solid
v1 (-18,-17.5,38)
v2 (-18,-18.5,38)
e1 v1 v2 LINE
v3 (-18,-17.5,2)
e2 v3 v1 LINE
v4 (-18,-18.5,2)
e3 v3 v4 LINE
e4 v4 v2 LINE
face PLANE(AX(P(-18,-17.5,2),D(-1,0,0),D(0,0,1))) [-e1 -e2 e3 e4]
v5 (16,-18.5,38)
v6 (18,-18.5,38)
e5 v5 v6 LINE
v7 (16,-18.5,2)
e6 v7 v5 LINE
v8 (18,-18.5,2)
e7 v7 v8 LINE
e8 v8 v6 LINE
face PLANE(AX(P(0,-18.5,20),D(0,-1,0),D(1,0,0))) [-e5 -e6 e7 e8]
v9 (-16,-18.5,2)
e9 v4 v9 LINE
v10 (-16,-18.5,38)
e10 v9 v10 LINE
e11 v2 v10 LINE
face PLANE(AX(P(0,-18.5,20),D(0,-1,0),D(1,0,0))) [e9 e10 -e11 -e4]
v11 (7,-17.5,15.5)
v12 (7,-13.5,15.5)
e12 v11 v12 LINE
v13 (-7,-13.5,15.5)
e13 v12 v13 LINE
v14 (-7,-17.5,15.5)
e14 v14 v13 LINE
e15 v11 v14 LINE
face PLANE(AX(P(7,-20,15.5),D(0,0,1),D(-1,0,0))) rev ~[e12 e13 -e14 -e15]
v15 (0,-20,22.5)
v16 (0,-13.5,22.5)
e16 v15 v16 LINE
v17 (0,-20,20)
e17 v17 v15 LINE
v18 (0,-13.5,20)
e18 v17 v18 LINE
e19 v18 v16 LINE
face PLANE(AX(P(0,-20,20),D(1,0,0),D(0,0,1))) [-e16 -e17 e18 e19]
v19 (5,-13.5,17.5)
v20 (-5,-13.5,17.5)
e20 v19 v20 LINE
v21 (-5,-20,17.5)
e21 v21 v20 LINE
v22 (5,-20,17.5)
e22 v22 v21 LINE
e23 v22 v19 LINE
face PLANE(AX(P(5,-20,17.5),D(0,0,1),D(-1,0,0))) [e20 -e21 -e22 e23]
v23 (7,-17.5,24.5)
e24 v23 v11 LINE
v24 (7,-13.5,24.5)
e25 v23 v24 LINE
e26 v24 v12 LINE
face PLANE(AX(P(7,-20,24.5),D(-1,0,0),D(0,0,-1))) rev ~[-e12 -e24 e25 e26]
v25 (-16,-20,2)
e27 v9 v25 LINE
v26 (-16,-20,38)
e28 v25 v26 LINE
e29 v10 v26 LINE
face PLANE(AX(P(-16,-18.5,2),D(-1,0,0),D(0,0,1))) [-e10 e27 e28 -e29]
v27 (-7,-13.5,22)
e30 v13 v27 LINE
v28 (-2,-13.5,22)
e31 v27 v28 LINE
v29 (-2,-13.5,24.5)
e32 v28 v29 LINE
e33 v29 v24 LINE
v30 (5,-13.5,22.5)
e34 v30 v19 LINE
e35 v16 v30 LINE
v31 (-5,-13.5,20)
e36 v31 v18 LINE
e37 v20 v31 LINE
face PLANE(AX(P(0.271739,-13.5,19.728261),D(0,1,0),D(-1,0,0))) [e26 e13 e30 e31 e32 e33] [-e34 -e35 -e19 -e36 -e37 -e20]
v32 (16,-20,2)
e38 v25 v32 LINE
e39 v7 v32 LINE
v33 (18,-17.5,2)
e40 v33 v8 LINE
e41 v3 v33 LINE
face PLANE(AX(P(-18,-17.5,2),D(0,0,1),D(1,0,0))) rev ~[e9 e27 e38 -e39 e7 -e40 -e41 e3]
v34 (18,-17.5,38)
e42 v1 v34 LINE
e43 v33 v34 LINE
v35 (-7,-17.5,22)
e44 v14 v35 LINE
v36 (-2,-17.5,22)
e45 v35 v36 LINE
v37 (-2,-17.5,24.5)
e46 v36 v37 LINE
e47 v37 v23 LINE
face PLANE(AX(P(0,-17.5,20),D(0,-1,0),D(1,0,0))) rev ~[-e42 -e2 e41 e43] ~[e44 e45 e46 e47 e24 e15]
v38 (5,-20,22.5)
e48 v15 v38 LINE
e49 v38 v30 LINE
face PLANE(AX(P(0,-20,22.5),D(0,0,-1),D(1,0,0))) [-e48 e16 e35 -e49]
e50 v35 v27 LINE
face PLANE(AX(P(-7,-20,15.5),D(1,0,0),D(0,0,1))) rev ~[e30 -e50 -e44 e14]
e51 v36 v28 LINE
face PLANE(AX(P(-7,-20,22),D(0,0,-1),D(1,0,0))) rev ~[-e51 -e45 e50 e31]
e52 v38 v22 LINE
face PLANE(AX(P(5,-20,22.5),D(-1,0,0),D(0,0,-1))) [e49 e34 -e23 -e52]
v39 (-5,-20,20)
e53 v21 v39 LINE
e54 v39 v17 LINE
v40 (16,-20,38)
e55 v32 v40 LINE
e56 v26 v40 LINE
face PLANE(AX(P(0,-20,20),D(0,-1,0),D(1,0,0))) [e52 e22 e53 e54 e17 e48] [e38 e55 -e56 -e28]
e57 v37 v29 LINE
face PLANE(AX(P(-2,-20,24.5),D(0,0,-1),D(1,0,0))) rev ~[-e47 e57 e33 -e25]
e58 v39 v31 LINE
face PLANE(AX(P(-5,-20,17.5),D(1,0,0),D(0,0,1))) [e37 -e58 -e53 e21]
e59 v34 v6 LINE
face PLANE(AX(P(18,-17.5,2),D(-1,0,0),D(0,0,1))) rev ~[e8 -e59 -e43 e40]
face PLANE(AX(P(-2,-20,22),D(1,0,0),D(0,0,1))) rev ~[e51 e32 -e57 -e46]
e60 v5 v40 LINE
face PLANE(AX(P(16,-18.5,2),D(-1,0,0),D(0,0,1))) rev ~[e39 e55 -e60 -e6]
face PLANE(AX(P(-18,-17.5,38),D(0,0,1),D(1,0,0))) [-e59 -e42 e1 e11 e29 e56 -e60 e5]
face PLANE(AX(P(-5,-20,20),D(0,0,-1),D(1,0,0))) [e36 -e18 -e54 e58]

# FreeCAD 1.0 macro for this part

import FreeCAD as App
import Part
import Sketcher
Q = App.Units.Quantity

doc = App.newDocument("Part")
params = doc.addObject("Spreadsheet::Sheet", "Params")
for row, (alias, value) in enumerate([
    ("sketch1_width", "32 mm"),
    ("sketch1_height", "36 mm"),
    ("pad1_length", "1.5 mm"),
    ("sketch2_width", "36 mm"),
    ("pad2_length", "1 mm"),
    ("sketch3_width", "5 mm"),
    ("pocket1_length", "5 mm"),
    ("sketch4_width", "9 mm"),
    ("sketch4_width2", "5 mm"),
    ("sketch4_height", "2.5 mm"),
    ("pad3_length", "6.5 mm"),
    ("sketch5_width", "5 mm"),
    ("pocket2_length", "6.5 mm"),
], start=1):
    params.set(f"A{row}", alias)
    params.set(f"B{row}", "=" + value)
    params.setAlias(f"B{row}", alias)

body = doc.addObject("PartDesign::Body", "Body")

# Sketch on XY plane
sketch1 = body.newObject("Sketcher::SketchObject", "Sketch")
sketch1.AttachmentSupport = (doc.getObject("XY_Plane"), [""])
sketch1.MapMode = "FlatFace"
sketch1.AttachmentOffset = App.Placement(App.Vector(0, 0, 1), App.Rotation())
sketch1.addGeometry([
    Part.LineSegment(App.Vector(-16, 18, 0), App.Vector(-16, -18, 0)),
    Part.LineSegment(App.Vector(-16, -18, 0), App.Vector(16, -18, 0)),
    Part.LineSegment(App.Vector(16, -18, 0), App.Vector(16, 18, 0)),
    Part.LineSegment(App.Vector(16, 18, 0), App.Vector(-16, 18, 0)),
], False)
sketch1.addConstraint([
    Sketcher.Constraint("Coincident", 0, 2, 1, 1),
    Sketcher.Constraint("Coincident", 1, 2, 2, 1),
    Sketcher.Constraint("Coincident", 2, 2, 3, 1),
    Sketcher.Constraint("Coincident", 3, 2, 0, 1),
    Sketcher.Constraint("Vertical", 0),
    Sketcher.Constraint("Horizontal", 1),
    Sketcher.Constraint("Vertical", 2),
    Sketcher.Constraint("Horizontal", 3),
    Sketcher.Constraint("Symmetric", 0, 2, 2, 2, -1, 1),
    Sketcher.Constraint("DistanceX", 1, 1, 1, 2, Q("32 mm")),
    Sketcher.Constraint("DistanceY", 0, 2, 0, 1, Q("36 mm")),
])
sketch1.setExpression("Constraints[9]", "Params.sketch1_width")
sketch1.setExpression("Constraints[10]", "Params.sketch1_height")
pad1 = body.newObject("PartDesign::Pad", "Pad")
pad1.Profile = sketch1
pad1.setExpression("Length", "Params.pad1_length")
body2 = doc.addObject("PartDesign::Body", "Body001")

# Sketch on XY plane
sketch2 = body2.newObject("Sketcher::SketchObject", "Sketch001")
sketch2.AttachmentSupport = (doc.getObject("XY_Plane001"), [""])
sketch2.MapMode = "FlatFace"
sketch2.addGeometry([
    Part.LineSegment(App.Vector(-18, 18, 0), App.Vector(-18, -18, 0)),
    Part.LineSegment(App.Vector(-18, -18, 0), App.Vector(18, -18, 0)),
    Part.LineSegment(App.Vector(18, -18, 0), App.Vector(18, 18, 0)),
    Part.LineSegment(App.Vector(18, 18, 0), App.Vector(-18, 18, 0)),
], False)
sketch2.addConstraint([
    Sketcher.Constraint("Coincident", 0, 2, 1, 1),
    Sketcher.Constraint("Coincident", 1, 2, 2, 1),
    Sketcher.Constraint("Coincident", 2, 2, 3, 1),
    Sketcher.Constraint("Coincident", 3, 2, 0, 1),
    Sketcher.Constraint("Vertical", 0),
    Sketcher.Constraint("Horizontal", 1),
    Sketcher.Constraint("Vertical", 2),
    Sketcher.Constraint("Horizontal", 3),
    Sketcher.Constraint("Symmetric", 0, 2, 2, 2, -1, 1),
    Sketcher.Constraint("Equal", 3, 0),
    Sketcher.Constraint("DistanceX", 1, 1, 1, 2, Q("36 mm")),
])
sketch2.setExpression("Constraints[10]", "Params.sketch2_width")
pad2 = body2.newObject("PartDesign::Pad", "Pad001")
pad2.Profile = sketch2
pad2.setExpression("Length", "Params.pad2_length")
doc.recompute()

boolean = body2.newObject("PartDesign::Boolean", "Boolean")
boolean.Type = "Fuse"
boolean.addObjects([body])
body3 = doc.addObject("PartDesign::Body", "Body002")
doc.recompute()

body2.Placement = App.Placement(App.Vector(0, -17.5, 20), App.Rotation(App.Vector(1, 0, 0), 90))
boolean2 = body3.newObject("PartDesign::Boolean", "Boolean001")
boolean2.Type = "Fuse"
boolean2.addObjects([body2])
body4 = doc.addObject("PartDesign::Body", "Body003")
doc.recompute()

body3.Placement = App.Placement(App.Vector(0, -20, -17.5), App.Rotation(App.Vector(-1, 0, 0), 90))
boolean3 = body4.newObject("PartDesign::Boolean", "Boolean002")
boolean3.Type = "Fuse"
boolean3.addObjects([body3])

# Sketch on XY plane
sketch3 = body4.newObject("Sketcher::SketchObject", "Sketch002")
sketch3.AttachmentSupport = (doc.getObject("XY_Plane003"), [""])
sketch3.MapMode = "FlatFace"
sketch3.AttachmentOffset = App.Placement(App.Vector(0, 0, 2.5), App.Rotation())
sketch3.addGeometry([
    Part.LineSegment(App.Vector(0, 2.5, 0), App.Vector(0, 0, 0)),  # 0
    Part.LineSegment(App.Vector(0, 0, 0), App.Vector(-5, 0, 0)),  # 1
    Part.LineSegment(App.Vector(-5, 0, 0), App.Vector(-5, -2.5, 0)),  # 2
    Part.LineSegment(App.Vector(-5, -2.5, 0), App.Vector(5, -2.5, 0)),  # 3
    Part.LineSegment(App.Vector(5, -2.5, 0), App.Vector(5, 2.5, 0)),  # 4
    Part.LineSegment(App.Vector(5, 2.5, 0), App.Vector(0, 2.5, 0)),  # 5
], False)
sketch3.addConstraint([
    Sketcher.Constraint("Coincident", 0, 2, 1, 1),
    Sketcher.Constraint("Coincident", 1, 2, 2, 1),
    Sketcher.Constraint("Coincident", 2, 2, 3, 1),
    Sketcher.Constraint("Coincident", 3, 2, 4, 1),
    Sketcher.Constraint("Coincident", 4, 2, 5, 1),
    Sketcher.Constraint("Coincident", 5, 2, 0, 1),
    Sketcher.Constraint("Vertical", 0),
    Sketcher.Constraint("Horizontal", 1),
    Sketcher.Constraint("Vertical", 2),
    Sketcher.Constraint("Horizontal", 3),
    Sketcher.Constraint("Vertical", 4),
    Sketcher.Constraint("Horizontal", 5),
    Sketcher.Constraint("Coincident", 0, 2, -1, 1),
    Sketcher.Constraint("Symmetric", 2, 2, 4, 2, -1, 1),
    Sketcher.Constraint("Equal", 5, 4),
    Sketcher.Constraint("DistanceX", 1, 2, 1, 1, Q("5 mm")),
])
sketch3.setExpression("Constraints[15]", "Params.sketch3_width")
pocket1 = body4.newObject("PartDesign::Pocket", "Pocket")
pocket1.Profile = sketch3
pocket1.setExpression("Length", "Params.pocket1_length")

# Sketch on XY plane
sketch4 = body4.newObject("Sketcher::SketchObject", "Sketch003")
sketch4.AttachmentSupport = (doc.getObject("XY_Plane003"), [""])
sketch4.MapMode = "FlatFace"
sketch4.AttachmentOffset = App.Placement(App.Vector(0, 0, 2.5), App.Rotation())
sketch4.addGeometry([
    Part.LineSegment(App.Vector(7, 4.5, 0), App.Vector(-2, 4.5, 0)),  # 0
    Part.LineSegment(App.Vector(-2, 4.5, 0), App.Vector(-2, 2, 0)),  # 1
    Part.LineSegment(App.Vector(-2, 2, 0), App.Vector(-7, 2, 0)),  # 2
    Part.LineSegment(App.Vector(-7, 2, 0), App.Vector(-7, -4.5, 0)),  # 3
    Part.LineSegment(App.Vector(-7, -4.5, 0), App.Vector(7, -4.5, 0)),  # 4
    Part.LineSegment(App.Vector(7, -4.5, 0), App.Vector(7, 4.5, 0)),  # 5
], False)
sketch4.addConstraint([
    Sketcher.Constraint("Coincident", 0, 2, 1, 1),
    Sketcher.Constraint("Coincident", 1, 2, 2, 1),
    Sketcher.Constraint("Coincident", 2, 2, 3, 1),
    Sketcher.Constraint("Coincident", 3, 2, 4, 1),
    Sketcher.Constraint("Coincident", 4, 2, 5, 1),
    Sketcher.Constraint("Coincident", 5, 2, 0, 1),
    Sketcher.Constraint("Horizontal", 0),
    Sketcher.Constraint("Vertical", 1),
    Sketcher.Constraint("Horizontal", 2),
    Sketcher.Constraint("Vertical", 3),
    Sketcher.Constraint("Horizontal", 4),
    Sketcher.Constraint("Vertical", 5),
    Sketcher.Constraint("Symmetric", 3, 2, 5, 2, -1, 1),
    Sketcher.Constraint("Equal", 0, 5),
    Sketcher.Constraint("DistanceX", 0, 2, 0, 1, Q("9 mm")),
    Sketcher.Constraint("DistanceX", 2, 2, 2, 1, Q("5 mm")),
    Sketcher.Constraint("DistanceY", 1, 2, 1, 1, Q("2.5 mm")),
])
sketch4.setExpression("Constraints[14]", "Params.sketch4_width")
sketch4.setExpression("Constraints[15]", "Params.sketch4_width2")
sketch4.setExpression("Constraints[16]", "Params.sketch4_height")
pad3 = body4.newObject("PartDesign::Pad", "Pad002")
pad3.Profile = sketch4
pad3.setExpression("Length", "Params.pad3_length")
pad3.Reversed = True

# Sketch on XY plane
sketch5 = body4.newObject("Sketcher::SketchObject", "Sketch004")
sketch5.AttachmentSupport = (doc.getObject("XY_Plane003"), [""])
sketch5.MapMode = "FlatFace"
sketch5.AttachmentOffset = App.Placement(App.Vector(0, 0, 2.5), App.Rotation())
sketch5.addGeometry([
    Part.LineSegment(App.Vector(0, 2.5, 0), App.Vector(0, 0, 0)),  # 0
    Part.LineSegment(App.Vector(0, 0, 0), App.Vector(-5, 0, 0)),  # 1
    Part.LineSegment(App.Vector(-5, 0, 0), App.Vector(-5, -2.5, 0)),  # 2
    Part.LineSegment(App.Vector(-5, -2.5, 0), App.Vector(5, -2.5, 0)),  # 3
    Part.LineSegment(App.Vector(5, -2.5, 0), App.Vector(5, 2.5, 0)),  # 4
    Part.LineSegment(App.Vector(5, 2.5, 0), App.Vector(0, 2.5, 0)),  # 5
], False)
sketch5.addConstraint([
    Sketcher.Constraint("Coincident", 0, 2, 1, 1),
    Sketcher.Constraint("Coincident", 1, 2, 2, 1),
    Sketcher.Constraint("Coincident", 2, 2, 3, 1),
    Sketcher.Constraint("Coincident", 3, 2, 4, 1),
    Sketcher.Constraint("Coincident", 4, 2, 5, 1),
    Sketcher.Constraint("Coincident", 5, 2, 0, 1),
    Sketcher.Constraint("Vertical", 0),
    Sketcher.Constraint("Horizontal", 1),
    Sketcher.Constraint("Vertical", 2),
    Sketcher.Constraint("Horizontal", 3),
    Sketcher.Constraint("Vertical", 4),
    Sketcher.Constraint("Horizontal", 5),
    Sketcher.Constraint("Coincident", 0, 2, -1, 1),
    Sketcher.Constraint("Symmetric", 2, 2, 4, 2, -1, 1),
    Sketcher.Constraint("Equal", 5, 4),
    Sketcher.Constraint("DistanceX", 1, 2, 1, 1, Q("5 mm")),
])
sketch5.setExpression("Constraints[15]", "Params.sketch5_width")
pocket2 = body4.newObject("PartDesign::Pocket", "Pocket001")
pocket2.Profile = sketch5
pocket2.setExpression("Length", "Params.pocket2_length")
body5 = doc.addObject("PartDesign::Body", "Body004")
doc.recompute()

body4.Placement = App.Placement(App.Vector(0, -17.5, 20), App.Rotation(App.Vector(1, 0, 0), 90))
boolean4 = body5.newObject("PartDesign::Boolean", "Boolean003")
boolean4.Type = "Fuse"
boolean4.addObjects([body4])

doc.recompute()
